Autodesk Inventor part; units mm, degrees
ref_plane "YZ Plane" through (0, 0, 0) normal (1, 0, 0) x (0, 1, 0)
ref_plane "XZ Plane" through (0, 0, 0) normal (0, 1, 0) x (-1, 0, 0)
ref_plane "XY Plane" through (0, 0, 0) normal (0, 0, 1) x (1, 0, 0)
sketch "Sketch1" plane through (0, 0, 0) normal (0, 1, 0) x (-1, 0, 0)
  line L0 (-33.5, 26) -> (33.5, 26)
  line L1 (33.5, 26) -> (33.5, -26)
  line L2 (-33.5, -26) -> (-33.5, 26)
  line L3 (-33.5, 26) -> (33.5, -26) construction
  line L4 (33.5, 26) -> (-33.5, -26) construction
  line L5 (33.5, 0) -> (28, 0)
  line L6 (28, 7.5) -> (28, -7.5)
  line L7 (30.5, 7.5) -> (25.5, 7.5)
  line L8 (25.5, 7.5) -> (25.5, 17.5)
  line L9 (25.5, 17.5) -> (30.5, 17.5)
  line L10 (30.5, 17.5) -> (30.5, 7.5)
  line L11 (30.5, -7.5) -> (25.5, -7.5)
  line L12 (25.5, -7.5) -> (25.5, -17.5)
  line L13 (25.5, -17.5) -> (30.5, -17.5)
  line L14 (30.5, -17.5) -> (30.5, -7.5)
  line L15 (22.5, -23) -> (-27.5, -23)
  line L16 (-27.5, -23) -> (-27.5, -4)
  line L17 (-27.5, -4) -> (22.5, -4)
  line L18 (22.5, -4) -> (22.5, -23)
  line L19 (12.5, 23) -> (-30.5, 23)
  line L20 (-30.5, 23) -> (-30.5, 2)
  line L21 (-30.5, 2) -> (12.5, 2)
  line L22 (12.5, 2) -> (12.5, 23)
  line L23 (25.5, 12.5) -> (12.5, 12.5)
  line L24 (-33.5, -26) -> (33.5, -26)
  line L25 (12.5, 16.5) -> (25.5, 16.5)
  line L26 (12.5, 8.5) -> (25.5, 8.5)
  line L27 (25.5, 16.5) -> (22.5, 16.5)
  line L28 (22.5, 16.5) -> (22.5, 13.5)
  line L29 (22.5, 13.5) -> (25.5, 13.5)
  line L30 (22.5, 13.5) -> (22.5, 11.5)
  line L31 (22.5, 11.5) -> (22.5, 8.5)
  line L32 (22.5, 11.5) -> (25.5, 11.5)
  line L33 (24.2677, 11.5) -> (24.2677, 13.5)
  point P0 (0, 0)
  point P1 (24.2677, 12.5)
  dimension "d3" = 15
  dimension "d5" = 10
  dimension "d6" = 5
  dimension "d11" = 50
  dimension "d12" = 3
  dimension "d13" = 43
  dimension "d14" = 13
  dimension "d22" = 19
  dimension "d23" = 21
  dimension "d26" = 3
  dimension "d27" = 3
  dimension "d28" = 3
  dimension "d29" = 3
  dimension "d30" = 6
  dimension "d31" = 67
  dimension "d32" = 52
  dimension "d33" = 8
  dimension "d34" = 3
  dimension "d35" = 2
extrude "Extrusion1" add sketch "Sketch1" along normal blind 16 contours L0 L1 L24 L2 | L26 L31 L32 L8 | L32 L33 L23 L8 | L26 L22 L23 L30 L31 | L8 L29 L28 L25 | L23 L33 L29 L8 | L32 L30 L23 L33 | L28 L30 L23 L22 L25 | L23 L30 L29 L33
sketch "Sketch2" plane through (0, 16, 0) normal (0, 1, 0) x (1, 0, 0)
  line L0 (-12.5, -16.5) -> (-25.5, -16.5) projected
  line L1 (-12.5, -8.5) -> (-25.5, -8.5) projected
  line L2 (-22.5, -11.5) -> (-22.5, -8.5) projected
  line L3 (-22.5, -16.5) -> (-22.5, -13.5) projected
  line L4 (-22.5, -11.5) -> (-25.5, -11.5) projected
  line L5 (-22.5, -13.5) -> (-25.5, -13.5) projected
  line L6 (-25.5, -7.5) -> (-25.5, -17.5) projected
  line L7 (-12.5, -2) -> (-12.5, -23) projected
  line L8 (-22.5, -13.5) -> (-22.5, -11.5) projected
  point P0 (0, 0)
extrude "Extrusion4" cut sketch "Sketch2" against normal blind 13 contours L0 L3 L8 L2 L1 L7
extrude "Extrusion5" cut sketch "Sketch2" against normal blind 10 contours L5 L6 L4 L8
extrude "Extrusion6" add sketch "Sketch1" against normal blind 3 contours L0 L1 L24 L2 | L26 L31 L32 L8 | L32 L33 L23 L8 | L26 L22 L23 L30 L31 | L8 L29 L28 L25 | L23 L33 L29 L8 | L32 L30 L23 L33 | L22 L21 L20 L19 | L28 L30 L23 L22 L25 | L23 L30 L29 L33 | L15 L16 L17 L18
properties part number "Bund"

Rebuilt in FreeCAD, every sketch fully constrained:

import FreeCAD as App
import Part
import Sketcher


def add_polygon(sketch, points):
    """Adds a closed chain of lines whose ends are joined by coincident constraints."""
    first, n = sketch.GeometryCount, len(points)
    for a, b in zip(points, points[1:] + points[:1]):
        sketch.addGeometry(Part.LineSegment(App.Vector(*a, 0), App.Vector(*b, 0)), False)
    for i in range(n):
        sketch.addConstraint(Sketcher.Constraint("Coincident", first + i, 2, first + (i + 1) % n, 1))

doc = App.newDocument("Part")
body = doc.addObject("PartDesign::Body", "Body")

# Sketch on XZ plane
sketch1 = body.newObject("Sketcher::SketchObject", "Sketch")
sketch1.AttachmentSupport = (doc.getObject("XZ_Plane"), [""])
sketch1.MapMode = "FlatFace"
add_polygon(sketch1, [(-33.5, 26), (33.5, 26), (33.5, -26), (-33.5, -26), (-33.5, 0)])  # lines 0-4
add_polygon(sketch1, [(-22.5, -4), (-22.5, -23), (27.5, -23), (27.5, -4)])  # lines 5-8
add_polygon(sketch1, [(-25.5, -7.5), (-28, -7.5), (-30.5, -7.5), (-30.5, -17.5), (-25.5, -17.5)])  # lines 9-13
add_polygon(sketch1, [(-30.5, 7.5), (-28, 7.5), (-25.5, 7.5), (-25.5, 17.5), (-30.5, 17.5)])  # lines 14-18
add_polygon(sketch1, [(-12.5, 23), (-12.5, 2), (30.5, 2), (30.5, 23)])  # lines 19-22
sketch1.addConstraint([
    Sketcher.Constraint("Horizontal", 0),
    Sketcher.Constraint("Vertical", 1),
    Sketcher.Constraint("Horizontal", 2),
    Sketcher.Constraint("Vertical", 3),
    Sketcher.Constraint("Vertical", 4),
    Sketcher.Constraint("Vertical", 5),
    Sketcher.Constraint("Horizontal", 6),
    Sketcher.Constraint("Vertical", 7),
    Sketcher.Constraint("Horizontal", 8),
    Sketcher.Constraint("Horizontal", 9),
    Sketcher.Constraint("Horizontal", 10),
    Sketcher.Constraint("Vertical", 11),
    Sketcher.Constraint("Horizontal", 12),
    Sketcher.Constraint("Vertical", 13),
    Sketcher.Constraint("Horizontal", 14),
    Sketcher.Constraint("Horizontal", 15),
    Sketcher.Constraint("Vertical", 16),
    Sketcher.Constraint("Horizontal", 17),
    Sketcher.Constraint("Vertical", 18),
    Sketcher.Constraint("Vertical", 19),
    Sketcher.Constraint("Horizontal", 20),
    Sketcher.Constraint("Vertical", 21),
    Sketcher.Constraint("Horizontal", 22),
    Sketcher.Constraint("Symmetric", 0, 2, 2, 2, -1, 1),
    Sketcher.Constraint("Symmetric", 9, 2, 14, 2, -1),
    Sketcher.Constraint("Symmetric", 12, 2, 16, 2, -1),
    Sketcher.Constraint("PointOnObject", 3, 2, -1),
    Sketcher.Constraint("Vertical", 11, 2, 17, 2),
    Sketcher.Constraint("Equal", 9, 10),
    Sketcher.Constraint("DistanceX", 0, 1, 0, 2, 67.0),
    Sketcher.Constraint("DistanceX", 6, 1, 6, 2, 50.0),
    Sketcher.Constraint("DistanceX", 12, 1, 12, 2, 5.0),
    Sketcher.Constraint("DistanceX", 20, 1, 20, 2, 43.0),
    Sketcher.Constraint("DistanceY", 1, 2, 1, 1, 52.0),
    Sketcher.Constraint("DistanceY", 5, 2, 5, 1, 19.0),
    Sketcher.Constraint("DistanceY", 11, 2, 11, 1, 10.0),
    Sketcher.Constraint("DistanceY", 19, 2, 19, 1, 21.0),
    Sketcher.Constraint("DistanceY", -1, 1, 19, 2, 2.0),
    Sketcher.Constraint("DistanceY", 2, 2, 5, 2, 3.0),
    Sketcher.Constraint("DistanceX", 6, 2, 1, 2, 6.0),
    Sketcher.Constraint("DistanceX", 3, 2, 10, 2, 3.0),
    Sketcher.Constraint("DistanceY", 9, 2, 14, 2, 15.0),
    Sketcher.Constraint("DistanceX", 8, 2, 19, 2, 10.0),
])
pad1 = body.newObject("PartDesign::Pad", "Pad")
pad1.Profile = sketch1
pad1.Length = 16
pad1.Reversed = True

# Sketch on XZ plane
sketch2 = body.newObject("Sketcher::SketchObject", "Sketch001")
sketch2.AttachmentSupport = (doc.getObject("XZ_Plane"), [""])
sketch2.MapMode = "FlatFace"
sketch2.AttachmentOffset = App.Placement(App.Vector(0, 0, -16), App.Rotation())
add_polygon(sketch2, [(-22, 16), (-12, 16), (-12, 8), (-22, 8)])  # lines 0-3
sketch2.addConstraint([
    Sketcher.Constraint("Horizontal", 0),
    Sketcher.Constraint("Vertical", 1),
    Sketcher.Constraint("Horizontal", 2),
    Sketcher.Constraint("Vertical", 3),
    Sketcher.Constraint("DistanceX", 0, 1, 0, 2, 10.0),
    Sketcher.Constraint("DistanceY", 1, 2, 1, 1, 8.0),
    Sketcher.Constraint("DistanceX", 0, 2, -1, 1, 12.5),
    Sketcher.Constraint("DistanceY", -1, 1, 0, 2, 16.5),
])
pocket1 = body.newObject("PartDesign::Pocket", "Pocket")
pocket1.Profile = sketch2
pocket1.Length = 13
pocket1.Reversed = True

# Sketch on XZ plane
sketch3 = body.newObject("Sketcher::SketchObject", "Sketch002")
sketch3.AttachmentSupport = (doc.getObject("XZ_Plane"), [""])
sketch3.MapMode = "FlatFace"
sketch3.AttachmentOffset = App.Placement(App.Vector(0, 0, -16), App.Rotation())
add_polygon(sketch3, [(-25.5, 13.5), (-22.5, 13.5), (-22.5, 11.5), (-25.5, 11.5)])  # lines 0-3
sketch3.addConstraint([
    Sketcher.Constraint("Horizontal", 0),
    Sketcher.Constraint("Vertical", 1),
    Sketcher.Constraint("Horizontal", 2),
    Sketcher.Constraint("Vertical", 3),
    Sketcher.Constraint("DistanceX", 0, 1, 0, 2, 3.0),
    Sketcher.Constraint("DistanceY", 1, 2, 1, 1, 2.0),
    Sketcher.Constraint("DistanceX", 0, 2, -1, 1, 22.5),
    Sketcher.Constraint("DistanceY", -1, 1, 0, 2, 13.5),
])
pocket2 = body.newObject("PartDesign::Pocket", "Pocket001")
pocket2.Profile = sketch3
pocket2.Length = 10
pocket2.Reversed = True

# Sketch on XZ plane
sketch4 = body.newObject("Sketcher::SketchObject", "Sketch003")
sketch4.AttachmentSupport = (doc.getObject("XZ_Plane"), [""])
sketch4.MapMode = "FlatFace"
add_polygon(sketch4, [(-33.5, 26), (33.5, 26), (33.5, -26), (-33.5, -26), (-33.5, 0)])  # lines 0-4
add_polygon(sketch4, [(-25.5, -7.5), (-28, -7.5), (-30.5, -7.5), (-30.5, -17.5), (-25.5, -17.5)])  # lines 5-9
add_polygon(sketch4, [(-30.5, 7.5), (-28, 7.5), (-25.5, 7.5), (-25.5, 17.5), (-30.5, 17.5)])  # lines 10-14
sketch4.addConstraint([
    Sketcher.Constraint("Horizontal", 0),
    Sketcher.Constraint("Vertical", 1),
    Sketcher.Constraint("Horizontal", 2),
    Sketcher.Constraint("Vertical", 3),
    Sketcher.Constraint("Vertical", 4),
    Sketcher.Constraint("Horizontal", 5),
    Sketcher.Constraint("Horizontal", 6),
    Sketcher.Constraint("Vertical", 7),
    Sketcher.Constraint("Horizontal", 8),
    Sketcher.Constraint("Vertical", 9),
    Sketcher.Constraint("Horizontal", 10),
    Sketcher.Constraint("Horizontal", 11),
    Sketcher.Constraint("Vertical", 12),
    Sketcher.Constraint("Horizontal", 13),
    Sketcher.Constraint("Vertical", 14),
    Sketcher.Constraint("Symmetric", 0, 2, 2, 2, -1, 1),
    Sketcher.Constraint("Symmetric", 5, 2, 10, 2, -1),
    Sketcher.Constraint("Symmetric", 8, 2, 12, 2, -1),
    Sketcher.Constraint("PointOnObject", 3, 2, -1),
    Sketcher.Constraint("Vertical", 7, 2, 13, 2),
    Sketcher.Constraint("Equal", 5, 6),
    Sketcher.Constraint("DistanceX", 0, 1, 0, 2, 67.0),
    Sketcher.Constraint("DistanceX", 8, 1, 8, 2, 5.0),
    Sketcher.Constraint("DistanceY", 1, 2, 1, 1, 52.0),
    Sketcher.Constraint("DistanceY", 7, 2, 7, 1, 10.0),
    Sketcher.Constraint("DistanceX", 3, 2, 6, 2, 3.0),
    Sketcher.Constraint("DistanceY", 5, 2, 10, 2, 15.0),
])
pad2 = body.newObject("PartDesign::Pad", "Pad001")
pad2.Profile = sketch4
pad2.Length = 3

doc.recompute()
